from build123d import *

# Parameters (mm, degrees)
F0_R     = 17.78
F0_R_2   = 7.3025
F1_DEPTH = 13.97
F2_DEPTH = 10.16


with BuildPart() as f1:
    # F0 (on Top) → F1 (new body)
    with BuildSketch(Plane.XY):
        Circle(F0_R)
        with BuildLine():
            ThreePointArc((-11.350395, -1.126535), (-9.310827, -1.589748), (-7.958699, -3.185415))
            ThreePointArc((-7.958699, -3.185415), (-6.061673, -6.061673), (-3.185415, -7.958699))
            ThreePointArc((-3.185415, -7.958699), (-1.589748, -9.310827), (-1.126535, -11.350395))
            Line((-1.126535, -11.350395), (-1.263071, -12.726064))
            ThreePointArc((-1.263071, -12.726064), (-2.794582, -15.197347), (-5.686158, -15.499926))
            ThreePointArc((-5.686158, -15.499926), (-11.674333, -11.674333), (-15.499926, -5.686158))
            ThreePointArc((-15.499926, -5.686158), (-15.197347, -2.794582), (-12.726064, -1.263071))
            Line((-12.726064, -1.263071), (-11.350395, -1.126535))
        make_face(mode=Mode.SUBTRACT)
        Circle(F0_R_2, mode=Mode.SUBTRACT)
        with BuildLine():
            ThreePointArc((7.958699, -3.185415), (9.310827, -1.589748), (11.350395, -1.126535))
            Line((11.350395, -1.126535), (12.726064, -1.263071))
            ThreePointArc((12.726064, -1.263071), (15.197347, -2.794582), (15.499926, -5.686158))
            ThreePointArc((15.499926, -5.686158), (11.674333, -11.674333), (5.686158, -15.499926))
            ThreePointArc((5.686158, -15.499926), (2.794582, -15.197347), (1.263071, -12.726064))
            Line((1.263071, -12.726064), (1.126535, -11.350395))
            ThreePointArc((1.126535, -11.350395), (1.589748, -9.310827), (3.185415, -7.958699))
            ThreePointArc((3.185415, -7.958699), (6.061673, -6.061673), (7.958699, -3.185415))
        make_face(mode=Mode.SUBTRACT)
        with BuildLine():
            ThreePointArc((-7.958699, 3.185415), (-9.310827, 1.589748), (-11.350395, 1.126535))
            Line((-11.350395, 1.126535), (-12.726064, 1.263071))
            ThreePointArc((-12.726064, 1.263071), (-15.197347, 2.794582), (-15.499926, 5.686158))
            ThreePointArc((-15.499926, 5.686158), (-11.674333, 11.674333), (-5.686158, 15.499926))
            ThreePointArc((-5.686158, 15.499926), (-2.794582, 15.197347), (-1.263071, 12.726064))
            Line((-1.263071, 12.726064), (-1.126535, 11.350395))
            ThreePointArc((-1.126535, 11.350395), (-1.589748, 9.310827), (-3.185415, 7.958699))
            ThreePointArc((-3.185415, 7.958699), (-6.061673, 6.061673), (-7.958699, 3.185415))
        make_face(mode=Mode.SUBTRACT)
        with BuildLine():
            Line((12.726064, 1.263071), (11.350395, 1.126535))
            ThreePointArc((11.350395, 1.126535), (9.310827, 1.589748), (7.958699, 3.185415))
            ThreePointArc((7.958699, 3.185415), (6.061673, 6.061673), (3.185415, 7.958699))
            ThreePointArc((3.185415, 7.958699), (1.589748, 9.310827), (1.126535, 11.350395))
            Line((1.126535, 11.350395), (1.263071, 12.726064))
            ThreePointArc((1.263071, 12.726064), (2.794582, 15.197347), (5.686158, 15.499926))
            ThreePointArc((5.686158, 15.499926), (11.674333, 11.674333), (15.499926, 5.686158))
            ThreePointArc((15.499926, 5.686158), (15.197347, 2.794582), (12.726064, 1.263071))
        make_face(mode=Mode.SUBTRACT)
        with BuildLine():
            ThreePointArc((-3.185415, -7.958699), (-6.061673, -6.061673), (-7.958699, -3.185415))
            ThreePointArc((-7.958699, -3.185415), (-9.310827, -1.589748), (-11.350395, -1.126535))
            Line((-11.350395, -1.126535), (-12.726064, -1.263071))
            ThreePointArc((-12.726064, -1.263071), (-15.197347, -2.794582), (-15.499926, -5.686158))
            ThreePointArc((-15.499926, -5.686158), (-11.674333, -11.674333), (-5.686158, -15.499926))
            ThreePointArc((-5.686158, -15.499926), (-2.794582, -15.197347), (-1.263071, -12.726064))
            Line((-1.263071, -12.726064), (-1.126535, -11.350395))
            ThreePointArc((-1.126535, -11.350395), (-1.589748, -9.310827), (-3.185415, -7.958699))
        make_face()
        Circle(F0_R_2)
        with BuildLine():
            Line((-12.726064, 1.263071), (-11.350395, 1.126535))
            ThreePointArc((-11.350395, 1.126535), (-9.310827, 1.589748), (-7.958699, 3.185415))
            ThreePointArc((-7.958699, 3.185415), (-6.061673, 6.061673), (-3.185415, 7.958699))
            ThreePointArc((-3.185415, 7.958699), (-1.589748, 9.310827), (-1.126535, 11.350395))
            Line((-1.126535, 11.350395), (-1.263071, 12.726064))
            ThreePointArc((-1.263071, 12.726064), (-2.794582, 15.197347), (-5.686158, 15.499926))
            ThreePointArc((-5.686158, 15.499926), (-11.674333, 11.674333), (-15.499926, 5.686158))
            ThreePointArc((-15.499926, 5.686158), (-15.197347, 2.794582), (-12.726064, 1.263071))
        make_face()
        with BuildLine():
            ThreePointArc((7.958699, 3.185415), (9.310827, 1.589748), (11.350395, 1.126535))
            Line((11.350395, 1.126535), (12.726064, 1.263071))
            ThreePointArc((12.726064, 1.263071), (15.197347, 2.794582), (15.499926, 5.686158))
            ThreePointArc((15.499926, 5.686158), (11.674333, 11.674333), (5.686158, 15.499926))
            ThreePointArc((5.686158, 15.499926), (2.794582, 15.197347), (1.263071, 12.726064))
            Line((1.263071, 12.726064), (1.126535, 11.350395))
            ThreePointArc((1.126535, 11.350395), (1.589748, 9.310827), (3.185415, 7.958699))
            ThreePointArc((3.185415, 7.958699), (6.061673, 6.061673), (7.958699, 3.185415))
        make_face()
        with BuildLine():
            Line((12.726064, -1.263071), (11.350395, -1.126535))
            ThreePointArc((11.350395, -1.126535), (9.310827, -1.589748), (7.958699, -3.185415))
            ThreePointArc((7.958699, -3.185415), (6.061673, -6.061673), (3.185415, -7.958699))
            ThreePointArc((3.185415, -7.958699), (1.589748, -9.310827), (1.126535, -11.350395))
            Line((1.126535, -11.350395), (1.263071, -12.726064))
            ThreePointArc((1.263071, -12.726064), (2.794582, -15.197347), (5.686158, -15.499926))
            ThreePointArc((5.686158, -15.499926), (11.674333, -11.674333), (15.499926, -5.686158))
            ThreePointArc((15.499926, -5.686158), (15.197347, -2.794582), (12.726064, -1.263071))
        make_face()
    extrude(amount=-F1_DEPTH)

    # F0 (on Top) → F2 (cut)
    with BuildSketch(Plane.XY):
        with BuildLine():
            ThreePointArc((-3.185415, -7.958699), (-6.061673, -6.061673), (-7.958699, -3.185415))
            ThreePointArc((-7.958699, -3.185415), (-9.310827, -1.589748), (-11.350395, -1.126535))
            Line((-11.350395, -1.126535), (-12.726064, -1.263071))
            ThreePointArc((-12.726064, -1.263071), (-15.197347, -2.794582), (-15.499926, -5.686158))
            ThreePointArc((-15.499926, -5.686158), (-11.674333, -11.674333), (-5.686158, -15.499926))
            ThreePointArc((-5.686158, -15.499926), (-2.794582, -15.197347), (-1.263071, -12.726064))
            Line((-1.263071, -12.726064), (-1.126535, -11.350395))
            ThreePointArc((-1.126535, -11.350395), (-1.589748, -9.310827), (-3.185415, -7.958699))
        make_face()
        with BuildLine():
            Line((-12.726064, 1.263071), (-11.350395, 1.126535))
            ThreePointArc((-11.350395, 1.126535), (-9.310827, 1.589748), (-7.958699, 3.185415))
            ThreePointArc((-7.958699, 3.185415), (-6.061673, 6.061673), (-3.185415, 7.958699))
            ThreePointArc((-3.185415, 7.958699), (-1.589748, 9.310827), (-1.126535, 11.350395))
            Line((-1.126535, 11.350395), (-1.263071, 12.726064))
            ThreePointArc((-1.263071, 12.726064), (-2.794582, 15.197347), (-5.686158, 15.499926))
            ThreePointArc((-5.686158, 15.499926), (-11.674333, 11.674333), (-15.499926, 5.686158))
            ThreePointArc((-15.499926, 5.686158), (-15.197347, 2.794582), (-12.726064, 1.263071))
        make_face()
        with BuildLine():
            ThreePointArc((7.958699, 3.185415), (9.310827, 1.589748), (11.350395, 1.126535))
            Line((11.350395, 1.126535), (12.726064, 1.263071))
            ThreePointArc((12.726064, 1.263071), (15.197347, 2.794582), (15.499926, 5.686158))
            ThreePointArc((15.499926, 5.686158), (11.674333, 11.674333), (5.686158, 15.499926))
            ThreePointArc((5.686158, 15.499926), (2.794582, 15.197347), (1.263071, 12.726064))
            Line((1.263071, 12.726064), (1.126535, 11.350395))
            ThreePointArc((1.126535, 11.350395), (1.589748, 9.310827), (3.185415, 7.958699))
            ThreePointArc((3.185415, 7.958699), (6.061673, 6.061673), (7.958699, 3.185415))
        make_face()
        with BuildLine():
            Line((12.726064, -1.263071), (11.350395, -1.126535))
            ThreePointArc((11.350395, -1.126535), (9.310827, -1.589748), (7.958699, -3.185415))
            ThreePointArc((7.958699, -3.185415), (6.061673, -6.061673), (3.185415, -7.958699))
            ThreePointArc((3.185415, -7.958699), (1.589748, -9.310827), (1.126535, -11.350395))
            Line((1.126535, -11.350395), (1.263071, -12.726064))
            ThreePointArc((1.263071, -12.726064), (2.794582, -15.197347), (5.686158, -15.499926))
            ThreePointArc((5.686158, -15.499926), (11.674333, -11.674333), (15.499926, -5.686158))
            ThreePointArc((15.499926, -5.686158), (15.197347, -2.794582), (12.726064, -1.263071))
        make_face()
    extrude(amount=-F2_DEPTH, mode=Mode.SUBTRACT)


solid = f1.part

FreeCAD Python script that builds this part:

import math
import FreeCAD as App
import Part
import Sketcher
Q = App.Units.Quantity

doc = App.newDocument("Part")
body = doc.addObject("PartDesign::Body", "Body")

# Sketch on XY plane
sketch1 = body.newObject("Sketcher::SketchObject", "Sketch")
sketch1.AttachmentSupport = (doc.getObject("XY_Plane"), [""])
sketch1.MapMode = "FlatFace"
sketch1.addGeometry(Part.Circle(App.Vector(0, 0, 0), App.Vector(0, 0, 1), 17.78), False)
sketch1.addConstraint([
    Sketcher.Constraint("Coincident", 0, 3, -1, 1),
    Sketcher.Constraint("Diameter", 0, Q("1.4 in")),
])
pad1 = body.newObject("PartDesign::Pad", "Pad")
pad1.Profile = sketch1
pad1.Length = Q("0.55 in")
pad1.Reversed = True

# Sketch on XY plane
sketch2 = body.newObject("Sketcher::SketchObject", "Sketch001")
sketch2.AttachmentSupport = (doc.getObject("XY_Plane"), [""])
sketch2.MapMode = "FlatFace"
sketch2.addGeometry([
    Part.ArcOfCircle(Part.Circle(App.Vector(0, 0, 0), App.Vector(0, 0, 1), 8.5725), math.radians(-158.186581), math.radians(-111.813419)),  # 0
    Part.ArcOfCircle(Part.Circle(App.Vector(-11.024272, -4.412391, 0), App.Vector(0, 0, 1), 3.302), math.radians(21.813442), math.radians(95.668081)),  # 1
    Part.LineSegment(App.Vector(-11.350395, -1.126535, 0), App.Vector(-12.726064, -1.263071, 0)),  # 2
    Part.ArcOfCircle(Part.Circle(App.Vector(-12.399942, -4.548926, 0), App.Vector(0, 0, 1), 3.301999), math.radians(95.668063), math.radians(200.145608)),  # 3
    Part.ArcOfCircle(Part.Circle(App.Vector(-0.000001, -0.000001, 0), App.Vector(0, 0, 1), 16.509999), math.radians(-159.854406), math.radians(-110.145594)),  # 4
    Part.ArcOfCircle(Part.Circle(App.Vector(-4.548926, -12.399942, 0), App.Vector(0, 0, 1), 3.301999), math.radians(-110.145608), math.radians(-5.668063)),  # 5
    Part.LineSegment(App.Vector(-1.263071, -12.726064, 0), App.Vector(-1.126535, -11.350395, 0)),  # 6
    Part.ArcOfCircle(Part.Circle(App.Vector(-4.412391, -11.024272, 0), App.Vector(0, 0, 1), 3.302), math.radians(-5.668081), math.radians(68.186558)),  # 7
    Part.LineSegment(App.Vector(-12.726064, 1.263071, 0), App.Vector(-11.350395, 1.126535, 0)),  # 8
    Part.ArcOfCircle(Part.Circle(App.Vector(-11.024272, 4.412391, 0), App.Vector(0, 0, 1), 3.302), math.radians(-95.668081), math.radians(-21.813442)),  # 9
    Part.ArcOfCircle(Part.Circle(App.Vector(0, 0, 0), App.Vector(0, 0, 1), 8.5725), math.radians(111.813419), math.radians(158.186581)),  # 10
    Part.ArcOfCircle(Part.Circle(App.Vector(-4.412391, 11.024272, 0), App.Vector(0, 0, 1), 3.302), math.radians(-68.186558), math.radians(5.668081)),  # 11
    Part.LineSegment(App.Vector(-1.126535, 11.350395, 0), App.Vector(-1.263071, 12.726064, 0)),  # 12
    Part.ArcOfCircle(Part.Circle(App.Vector(-4.548926, 12.399942, 0), App.Vector(0, 0, 1), 3.301999), math.radians(5.668063), math.radians(110.145608)),  # 13
    Part.ArcOfCircle(Part.Circle(App.Vector(-0.000001, 0.000001, 0), App.Vector(0, 0, 1), 16.509999), math.radians(110.145594), math.radians(159.854406)),  # 14
    Part.ArcOfCircle(Part.Circle(App.Vector(-12.399942, 4.548926, 0), App.Vector(0, 0, 1), 3.301999), math.radians(159.854392), math.radians(264.331937)),  # 15
    Part.ArcOfCircle(Part.Circle(App.Vector(11.024272, 4.412391, 0), App.Vector(0, 0, 1), 3.302), math.radians(-158.186558), math.radians(-84.331919)),  # 16
    Part.LineSegment(App.Vector(11.350395, 1.126535, 0), App.Vector(12.726064, 1.263071, 0)),  # 17
    Part.ArcOfCircle(Part.Circle(App.Vector(12.399942, 4.548926, 0), App.Vector(0, 0, 1), 3.301999), math.radians(-84.331937), math.radians(20.145608)),  # 18
    Part.ArcOfCircle(Part.Circle(App.Vector(0.000001, 0.000001, 0), App.Vector(0, 0, 1), 16.509999), math.radians(20.145594), math.radians(69.854406)),  # 19
    Part.ArcOfCircle(Part.Circle(App.Vector(4.548926, 12.399942, 0), App.Vector(0, 0, 1), 3.301999), math.radians(69.854392), math.radians(174.331937)),  # 20
    Part.LineSegment(App.Vector(1.263071, 12.726064, 0), App.Vector(1.126535, 11.350395, 0)),  # 21
    Part.ArcOfCircle(Part.Circle(App.Vector(4.412391, 11.024272, 0), App.Vector(0, 0, 1), 3.302), math.radians(174.331919), math.radians(248.186558)),  # 22
    Part.ArcOfCircle(Part.Circle(App.Vector(0, 0, 0), App.Vector(0, 0, 1), 8.5725), math.radians(21.813419), math.radians(68.186581)),  # 23
    Part.LineSegment(App.Vector(12.726064, -1.263071, 0), App.Vector(11.350395, -1.126535, 0)),  # 24
    Part.ArcOfCircle(Part.Circle(App.Vector(11.024272, -4.412391, 0), App.Vector(0, 0, 1), 3.302), math.radians(84.331919), math.radians(158.186558)),  # 25
    Part.ArcOfCircle(Part.Circle(App.Vector(0, 0, 0), App.Vector(0, 0, 1), 8.5725), math.radians(-68.186581), math.radians(-21.813419)),  # 26
    Part.ArcOfCircle(Part.Circle(App.Vector(4.412391, -11.024272, 0), App.Vector(0, 0, 1), 3.302), math.radians(111.813442), math.radians(185.668081)),  # 27
    Part.LineSegment(App.Vector(1.126535, -11.350395, 0), App.Vector(1.263071, -12.726064, 0)),  # 28
    Part.ArcOfCircle(Part.Circle(App.Vector(4.548926, -12.399942, 0), App.Vector(0, 0, 1), 3.301999), math.radians(-174.331937), math.radians(-69.854392)),  # 29
    Part.ArcOfCircle(Part.Circle(App.Vector(0.000001, -0.000001, 0), App.Vector(0, 0, 1), 16.509999), math.radians(-69.854406), math.radians(-20.145594)),  # 30
    Part.ArcOfCircle(Part.Circle(App.Vector(12.399942, -4.548926, 0), App.Vector(0, 0, 1), 3.301999), math.radians(-20.145608), math.radians(84.331937)),  # 31
], False)
sketch2.addConstraint([
    Sketcher.Constraint("Tangent", 0, 1, 1, 1),
    Sketcher.Constraint("Tangent", 1, 2, 2, 1),
    Sketcher.Constraint("Tangent", 2, 2, 3, 1),
    Sketcher.Constraint("Tangent", 3, 2, 4, 1),
    Sketcher.Constraint("Tangent", 4, 2, 5, 1),
    Sketcher.Constraint("Tangent", 5, 2, 6, 1),
    Sketcher.Constraint("Tangent", 6, 2, 7, 1),
    Sketcher.Constraint("Tangent", 7, 2, 0, 2),
    Sketcher.Constraint("Tangent", 8, 2, 9, 1),
    Sketcher.Constraint("Tangent", 9, 2, 10, 2),
    Sketcher.Constraint("Tangent", 10, 1, 11, 1),
    Sketcher.Constraint("Tangent", 11, 2, 12, 1),
    Sketcher.Constraint("Tangent", 12, 2, 13, 1),
    Sketcher.Constraint("Tangent", 13, 2, 14, 1),
    Sketcher.Constraint("Tangent", 14, 2, 15, 1),
    Sketcher.Constraint("Tangent", 15, 2, 8, 1),
    Sketcher.Constraint("Tangent", 16, 2, 17, 1),
    Sketcher.Constraint("Tangent", 17, 2, 18, 1),
    Sketcher.Constraint("Tangent", 18, 2, 19, 1),
    Sketcher.Constraint("Tangent", 19, 2, 20, 1),
    Sketcher.Constraint("Tangent", 20, 2, 21, 1),
    Sketcher.Constraint("Tangent", 21, 2, 22, 1),
    Sketcher.Constraint("Tangent", 22, 2, 23, 2),
    Sketcher.Constraint("Tangent", 23, 1, 16, 1),
    Sketcher.Constraint("Tangent", 24, 2, 25, 1),
    Sketcher.Constraint("Tangent", 25, 2, 26, 2),
    Sketcher.Constraint("Tangent", 26, 1, 27, 1),
    Sketcher.Constraint("Tangent", 27, 2, 28, 1),
    Sketcher.Constraint("Tangent", 28, 2, 29, 1),
    Sketcher.Constraint("Tangent", 29, 2, 30, 1),
    Sketcher.Constraint("Tangent", 30, 2, 31, 1),
    Sketcher.Constraint("Tangent", 31, 2, 24, 1),
    Sketcher.Constraint("Coincident", 0, 3, -1, 1),
    Sketcher.Constraint("Coincident", 4, 3, -1, 1),
    Sketcher.Constraint("Coincident", 10, 3, -1, 1),
    Sketcher.Constraint("Coincident", 14, 3, -1, 1),
    Sketcher.Constraint("Coincident", 19, 3, -1, 1),
    Sketcher.Constraint("Coincident", 23, 3, -1, 1),
    Sketcher.Constraint("Coincident", 26, 3, -1, 1),
    Sketcher.Constraint("Coincident", 30, 3, -1, 1),
    Sketcher.Constraint("Equal", 1, 3),
    Sketcher.Constraint("Equal", 3, 5),
    Sketcher.Constraint("Equal", 5, 7),
    Sketcher.Constraint("Equal", 7, 9),
    Sketcher.Constraint("Equal", 0, 10),
    Sketcher.Constraint("Equal", 9, 11),
    Sketcher.Constraint("Equal", 11, 13),
    Sketcher.Constraint("Equal", 4, 14),
    Sketcher.Constraint("Equal", 13, 15),
    Sketcher.Constraint("Equal", 15, 16),
    Sketcher.Constraint("Equal", 16, 18),
    Sketcher.Constraint("Equal", 14, 19),
    Sketcher.Constraint("Equal", 18, 20),
    Sketcher.Constraint("Equal", 20, 22),
    Sketcher.Constraint("Equal", 10, 23),
    Sketcher.Constraint("Equal", 22, 25),
    Sketcher.Constraint("Equal", 23, 26),
    Sketcher.Constraint("Equal", 25, 27),
    Sketcher.Constraint("Equal", 27, 29),
    Sketcher.Constraint("Equal", 19, 30),
    Sketcher.Constraint("Equal", 29, 31),
    Sketcher.Constraint("Symmetric", 1, 2, 16, 2, -1, 1),
    Sketcher.Constraint("Symmetric", 5, 2, 20, 2, -1, 1),
    Sketcher.Constraint("Symmetric", 8, 2, 24, 2, -1, 1),
    Sketcher.Constraint("Symmetric", 11, 2, 27, 2, -1, 1),
    Sketcher.Constraint("Symmetric", 8, 2, 16, 2, -2),
    Sketcher.Constraint("Symmetric", 12, 2, 20, 2, -2),
    Sketcher.Constraint("Perpendicular", 6, 8),
    Sketcher.Constraint("Equal", 2, 6),
    Sketcher.Constraint("Radius", 1, Q("0.13 in")),
    Sketcher.Constraint("Radius", 4, Q("0.65 in")),
    Sketcher.Constraint("Radius", 0, Q("0.3375 in")),
    Sketcher.Constraint("DistanceX", 0, 1, -1, 1, 7.958699),
    Sketcher.Constraint("Distance", 2, 1.382428),
])
pocket1 = body.newObject("PartDesign::Pocket", "Pocket")
pocket1.Profile = sketch2
pocket1.Length = Q("0.4 in")

doc.recompute()
